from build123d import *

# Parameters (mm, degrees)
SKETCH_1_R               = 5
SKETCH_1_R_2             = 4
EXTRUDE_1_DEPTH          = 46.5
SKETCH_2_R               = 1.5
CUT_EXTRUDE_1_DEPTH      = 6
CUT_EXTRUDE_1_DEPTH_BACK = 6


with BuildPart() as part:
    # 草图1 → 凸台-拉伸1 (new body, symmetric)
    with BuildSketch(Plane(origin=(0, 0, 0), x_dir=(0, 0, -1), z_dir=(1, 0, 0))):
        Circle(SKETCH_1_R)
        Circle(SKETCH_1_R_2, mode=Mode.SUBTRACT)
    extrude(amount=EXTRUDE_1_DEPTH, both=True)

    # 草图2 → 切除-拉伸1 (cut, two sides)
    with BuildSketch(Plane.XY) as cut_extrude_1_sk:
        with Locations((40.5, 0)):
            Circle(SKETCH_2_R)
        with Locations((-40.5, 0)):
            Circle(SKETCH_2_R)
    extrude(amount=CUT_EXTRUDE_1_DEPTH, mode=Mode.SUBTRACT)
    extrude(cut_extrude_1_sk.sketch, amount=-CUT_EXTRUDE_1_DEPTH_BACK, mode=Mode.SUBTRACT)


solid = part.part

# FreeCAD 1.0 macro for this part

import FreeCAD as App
import Part
import Sketcher

V = App.Vector
Q = App.Units.Quantity

doc = App.newDocument("Part")
body = doc.addObject("PartDesign::Body", "Body")

# Sketch on YZ plane
sketch1 = doc.addObject("Sketcher::SketchObject", "Sketch")
body.addObject(sketch1)
sketch1.AttachmentSupport = (doc.YZ_Plane, [""])
sketch1.MapMode = "FlatFace"
sketch1.addGeometry(Part.Circle(V(0, 0, 0), V(0, 0, 1), 5), False)
sketch1.addGeometry(Part.Circle(V(0, 0, 0), V(0, 0, 1), 4), False)
sketch1.addConstraint(Sketcher.Constraint("Coincident", 0, 3, -1, 1))
sketch1.addConstraint(Sketcher.Constraint("Coincident", 1, 3, -1, 1))
sketch1.addConstraint(Sketcher.Constraint("Diameter", 0, Q("10 mm")))
sketch1.addConstraint(Sketcher.Constraint("Diameter", 1, Q("8 mm")))
pad1 = doc.addObject("PartDesign::Pad", "Pad")
body.addObject(pad1)
pad1.Profile = sketch1
pad1.Length = 93
pad1.Midplane = True

# Sketch on XY plane
sketch2 = doc.addObject("Sketcher::SketchObject", "Sketch001")
body.addObject(sketch2)
sketch2.AttachmentSupport = (doc.XY_Plane, [""])
sketch2.MapMode = "FlatFace"
sketch2.addGeometry(Part.Circle(V(40.5, 0, 0), V(0, 0, 1), 1.5), False)
sketch2.addGeometry(Part.Circle(V(-40.5, 0, 0), V(0, 0, 1), 1.5), False)
sketch2.addConstraint(Sketcher.Constraint("Equal", 0, 1))
sketch2.addConstraint(Sketcher.Constraint("Symmetric", 0, 3, 1, 3, -1, 1))
sketch2.addConstraint(Sketcher.Constraint("PointOnObject", 0, 3, -1))
sketch2.addConstraint(Sketcher.Constraint("Diameter", 0, Q("3 mm")))
sketch2.addConstraint(Sketcher.Constraint("DistanceX", 1, 3, 0, 3, Q("81 mm")))
pocket1 = doc.addObject("PartDesign::Pocket", "Pocket")
body.addObject(pocket1)
pocket1.Profile = sketch2
pocket1.Type = "ThroughAll"
pocket1.Midplane = True

doc.recompute()
